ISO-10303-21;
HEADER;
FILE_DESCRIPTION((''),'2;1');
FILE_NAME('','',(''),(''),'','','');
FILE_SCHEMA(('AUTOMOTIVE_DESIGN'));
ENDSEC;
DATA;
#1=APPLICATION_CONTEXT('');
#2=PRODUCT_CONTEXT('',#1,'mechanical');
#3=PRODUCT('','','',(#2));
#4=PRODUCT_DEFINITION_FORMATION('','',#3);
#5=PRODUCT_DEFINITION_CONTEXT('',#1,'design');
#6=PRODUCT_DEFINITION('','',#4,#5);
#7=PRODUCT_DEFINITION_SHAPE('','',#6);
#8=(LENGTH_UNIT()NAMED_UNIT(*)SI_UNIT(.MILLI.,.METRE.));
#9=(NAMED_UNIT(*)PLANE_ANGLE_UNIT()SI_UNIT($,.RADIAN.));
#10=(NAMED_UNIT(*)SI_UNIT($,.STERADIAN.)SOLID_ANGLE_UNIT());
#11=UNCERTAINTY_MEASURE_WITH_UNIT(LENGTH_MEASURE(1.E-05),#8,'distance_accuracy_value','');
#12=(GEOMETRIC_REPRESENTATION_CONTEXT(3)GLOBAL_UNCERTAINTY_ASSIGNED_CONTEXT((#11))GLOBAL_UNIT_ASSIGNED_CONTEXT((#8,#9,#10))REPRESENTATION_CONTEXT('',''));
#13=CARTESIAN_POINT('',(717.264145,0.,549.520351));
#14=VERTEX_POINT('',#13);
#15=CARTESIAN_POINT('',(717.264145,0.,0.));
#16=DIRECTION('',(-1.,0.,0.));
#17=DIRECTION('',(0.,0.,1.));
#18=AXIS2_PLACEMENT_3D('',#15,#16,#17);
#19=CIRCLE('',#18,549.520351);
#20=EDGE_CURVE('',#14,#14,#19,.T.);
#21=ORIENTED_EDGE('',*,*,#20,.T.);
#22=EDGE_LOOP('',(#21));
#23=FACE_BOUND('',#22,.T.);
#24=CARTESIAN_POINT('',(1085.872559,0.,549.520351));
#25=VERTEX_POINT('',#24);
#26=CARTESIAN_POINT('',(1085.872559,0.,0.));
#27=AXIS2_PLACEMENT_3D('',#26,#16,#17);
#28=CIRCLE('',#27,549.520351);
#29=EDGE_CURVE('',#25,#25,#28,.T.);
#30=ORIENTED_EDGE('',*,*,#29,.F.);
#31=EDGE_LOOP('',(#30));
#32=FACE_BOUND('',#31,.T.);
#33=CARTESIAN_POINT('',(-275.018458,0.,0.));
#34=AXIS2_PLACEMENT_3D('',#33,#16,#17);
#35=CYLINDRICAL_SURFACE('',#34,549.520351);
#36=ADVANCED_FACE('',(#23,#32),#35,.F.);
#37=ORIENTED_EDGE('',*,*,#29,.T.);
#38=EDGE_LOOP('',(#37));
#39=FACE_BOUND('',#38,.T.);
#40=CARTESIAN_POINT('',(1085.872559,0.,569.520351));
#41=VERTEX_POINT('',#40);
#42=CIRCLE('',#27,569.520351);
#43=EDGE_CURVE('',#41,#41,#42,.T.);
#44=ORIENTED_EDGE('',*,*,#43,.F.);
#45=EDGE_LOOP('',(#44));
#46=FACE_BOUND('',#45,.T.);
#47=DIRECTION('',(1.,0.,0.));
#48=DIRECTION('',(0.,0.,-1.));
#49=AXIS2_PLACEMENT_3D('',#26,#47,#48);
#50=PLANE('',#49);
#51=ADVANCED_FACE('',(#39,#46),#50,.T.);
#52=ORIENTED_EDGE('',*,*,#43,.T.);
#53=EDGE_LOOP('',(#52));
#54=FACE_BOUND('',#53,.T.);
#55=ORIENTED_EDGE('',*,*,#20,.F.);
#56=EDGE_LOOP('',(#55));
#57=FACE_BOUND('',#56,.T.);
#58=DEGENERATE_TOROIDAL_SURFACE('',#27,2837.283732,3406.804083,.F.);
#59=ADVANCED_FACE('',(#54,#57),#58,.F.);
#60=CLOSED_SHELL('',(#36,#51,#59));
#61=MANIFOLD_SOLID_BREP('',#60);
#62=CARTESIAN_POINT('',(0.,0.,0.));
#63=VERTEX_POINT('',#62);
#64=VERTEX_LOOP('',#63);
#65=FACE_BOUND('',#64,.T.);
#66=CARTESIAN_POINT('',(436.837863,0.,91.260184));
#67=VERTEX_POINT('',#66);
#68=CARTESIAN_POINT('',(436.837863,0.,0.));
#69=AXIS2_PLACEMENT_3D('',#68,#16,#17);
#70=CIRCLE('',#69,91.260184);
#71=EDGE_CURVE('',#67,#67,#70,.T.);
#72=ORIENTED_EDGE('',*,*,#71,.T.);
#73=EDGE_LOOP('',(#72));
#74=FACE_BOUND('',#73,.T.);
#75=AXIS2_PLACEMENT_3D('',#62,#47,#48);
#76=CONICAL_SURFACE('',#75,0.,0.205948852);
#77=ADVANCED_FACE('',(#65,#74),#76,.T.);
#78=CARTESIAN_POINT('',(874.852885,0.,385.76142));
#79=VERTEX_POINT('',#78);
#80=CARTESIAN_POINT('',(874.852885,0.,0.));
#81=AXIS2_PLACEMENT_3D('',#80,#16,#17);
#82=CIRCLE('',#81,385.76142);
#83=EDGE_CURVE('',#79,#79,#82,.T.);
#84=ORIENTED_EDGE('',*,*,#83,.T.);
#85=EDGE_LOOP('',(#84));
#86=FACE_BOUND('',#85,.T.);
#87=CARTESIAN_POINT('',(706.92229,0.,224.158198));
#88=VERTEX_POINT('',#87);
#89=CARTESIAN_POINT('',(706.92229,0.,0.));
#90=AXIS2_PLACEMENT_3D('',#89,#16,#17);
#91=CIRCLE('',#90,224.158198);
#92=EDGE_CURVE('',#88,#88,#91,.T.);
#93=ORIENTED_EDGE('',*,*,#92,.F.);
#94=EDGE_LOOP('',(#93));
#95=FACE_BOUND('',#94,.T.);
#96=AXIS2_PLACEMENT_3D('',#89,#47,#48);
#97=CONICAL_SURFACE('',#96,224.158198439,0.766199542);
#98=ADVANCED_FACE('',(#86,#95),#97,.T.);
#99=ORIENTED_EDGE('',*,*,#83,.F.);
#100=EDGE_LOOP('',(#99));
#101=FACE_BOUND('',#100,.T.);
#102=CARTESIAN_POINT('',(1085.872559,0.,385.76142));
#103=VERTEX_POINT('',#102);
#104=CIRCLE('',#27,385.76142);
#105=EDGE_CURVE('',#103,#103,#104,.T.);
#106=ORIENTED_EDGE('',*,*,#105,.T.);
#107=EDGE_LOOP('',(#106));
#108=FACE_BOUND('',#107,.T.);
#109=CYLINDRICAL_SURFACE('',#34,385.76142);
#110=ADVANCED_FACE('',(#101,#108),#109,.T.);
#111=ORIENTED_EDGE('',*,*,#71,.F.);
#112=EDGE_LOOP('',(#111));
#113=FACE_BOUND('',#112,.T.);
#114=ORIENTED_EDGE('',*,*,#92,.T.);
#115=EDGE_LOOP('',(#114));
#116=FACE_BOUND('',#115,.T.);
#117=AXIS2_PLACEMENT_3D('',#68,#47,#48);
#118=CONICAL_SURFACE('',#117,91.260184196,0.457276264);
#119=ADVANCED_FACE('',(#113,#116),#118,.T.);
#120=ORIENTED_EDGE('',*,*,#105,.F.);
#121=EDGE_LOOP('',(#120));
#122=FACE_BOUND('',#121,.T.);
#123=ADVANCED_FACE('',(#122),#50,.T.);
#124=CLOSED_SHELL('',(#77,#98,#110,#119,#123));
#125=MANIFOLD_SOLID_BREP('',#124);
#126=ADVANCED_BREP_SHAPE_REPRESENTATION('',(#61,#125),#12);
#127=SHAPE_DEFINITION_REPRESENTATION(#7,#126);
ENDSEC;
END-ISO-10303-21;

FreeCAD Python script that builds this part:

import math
import FreeCAD as App
import Part
import Sketcher
Q = App.Units.Quantity


def add_polygon(sketch, points):
    """Adds a closed chain of lines whose ends are joined by coincident constraints."""
    first, n = sketch.GeometryCount, len(points)
    for a, b in zip(points, points[1:] + points[:1]):
        sketch.addGeometry(Part.LineSegment(App.Vector(*a, 0), App.Vector(*b, 0)), False)
    for i in range(n):
        sketch.addConstraint(Sketcher.Constraint("Coincident", first + i, 2, first + (i + 1) % n, 1))

doc = App.newDocument("Part")
body = doc.addObject("PartDesign::Body", "Body")
body.AllowCompound = True

sketch1 = doc.addObject("Sketcher::SketchObject", "Sketch")
body.addObject(sketch1)
sketch1.AttachmentSupport = (doc.XY_Plane, [""])
sketch1.MapMode = "FlatFace"
add_polygon(sketch1, [(437, 91), (0, 0), (1086, 0), (1086, 386), (875, 386), (707, 224)])
sketch1.addGeometry(Part.ArcOfCircle(Part.Circle(App.Vector(1086, -2837, 0), App.Vector(0, 0, 1), 3407), math.radians(90), math.radians(96.21)), False)
sketch1.addGeometry(Part.LineSegment(App.Vector(717, 550, 0), App.Vector(1086, 550, 0)), False)
sketch1.addGeometry(Part.LineSegment(App.Vector(1086, 550, 0), App.Vector(1086, 570, 0)), False)
sketch1.addConstraint([
    Sketcher.Constraint("Coincident", 6, 2, 7, 1),
    Sketcher.Constraint("Coincident", 7, 2, 8, 1),
    Sketcher.Constraint("Coincident", 8, 2, 6, 1),
    Sketcher.Constraint("Horizontal", 1),
    Sketcher.Constraint("Vertical", 2),
    Sketcher.Constraint("Horizontal", 3),
    Sketcher.Constraint("Horizontal", 7),
    Sketcher.Constraint("Vertical", 8),
    Sketcher.Constraint("Coincident", 0, 2, -1, 1),
    Sketcher.Constraint("Vertical", 6, 3, 1, 2),
    Sketcher.Constraint("Vertical", 2, 2, 7, 2),
    Sketcher.Constraint("DistanceY", 8, 1, 8, 2, Q("20 mm")),
    Sketcher.Constraint("Angle", 0, Q("-168.2 deg")),
    Sketcher.Constraint("Angle", 4, Q("-136.1 deg")),
    Sketcher.Constraint("Angle", 5, Q("-153.8 deg")),
    Sketcher.Constraint("Radius", 6, Q("3406.804083 mm")),
    Sketcher.Constraint("DistanceX", 1, 1, 1, 2, Q("1085.872559 mm")),
    Sketcher.Constraint("DistanceY", 2, 1, 2, 2, Q("385.76142 mm")),
    Sketcher.Constraint("DistanceY", -1, 1, 4, 2, Q("224.158198 mm")),
    Sketcher.Constraint("DistanceX", 3, 2, 3, 1, Q("211.019674 mm")),
    Sketcher.Constraint("DistanceY", -1, 1, 7, 2, Q("549.520351 mm")),
])
revolution = doc.addObject("PartDesign::Revolution", "Revolution")
body.addObject(revolution)
revolution.Profile = sketch1
revolution.ReferenceAxis = (sketch1, ["H_Axis"])
revolution.Angle = 360

doc.recompute()
